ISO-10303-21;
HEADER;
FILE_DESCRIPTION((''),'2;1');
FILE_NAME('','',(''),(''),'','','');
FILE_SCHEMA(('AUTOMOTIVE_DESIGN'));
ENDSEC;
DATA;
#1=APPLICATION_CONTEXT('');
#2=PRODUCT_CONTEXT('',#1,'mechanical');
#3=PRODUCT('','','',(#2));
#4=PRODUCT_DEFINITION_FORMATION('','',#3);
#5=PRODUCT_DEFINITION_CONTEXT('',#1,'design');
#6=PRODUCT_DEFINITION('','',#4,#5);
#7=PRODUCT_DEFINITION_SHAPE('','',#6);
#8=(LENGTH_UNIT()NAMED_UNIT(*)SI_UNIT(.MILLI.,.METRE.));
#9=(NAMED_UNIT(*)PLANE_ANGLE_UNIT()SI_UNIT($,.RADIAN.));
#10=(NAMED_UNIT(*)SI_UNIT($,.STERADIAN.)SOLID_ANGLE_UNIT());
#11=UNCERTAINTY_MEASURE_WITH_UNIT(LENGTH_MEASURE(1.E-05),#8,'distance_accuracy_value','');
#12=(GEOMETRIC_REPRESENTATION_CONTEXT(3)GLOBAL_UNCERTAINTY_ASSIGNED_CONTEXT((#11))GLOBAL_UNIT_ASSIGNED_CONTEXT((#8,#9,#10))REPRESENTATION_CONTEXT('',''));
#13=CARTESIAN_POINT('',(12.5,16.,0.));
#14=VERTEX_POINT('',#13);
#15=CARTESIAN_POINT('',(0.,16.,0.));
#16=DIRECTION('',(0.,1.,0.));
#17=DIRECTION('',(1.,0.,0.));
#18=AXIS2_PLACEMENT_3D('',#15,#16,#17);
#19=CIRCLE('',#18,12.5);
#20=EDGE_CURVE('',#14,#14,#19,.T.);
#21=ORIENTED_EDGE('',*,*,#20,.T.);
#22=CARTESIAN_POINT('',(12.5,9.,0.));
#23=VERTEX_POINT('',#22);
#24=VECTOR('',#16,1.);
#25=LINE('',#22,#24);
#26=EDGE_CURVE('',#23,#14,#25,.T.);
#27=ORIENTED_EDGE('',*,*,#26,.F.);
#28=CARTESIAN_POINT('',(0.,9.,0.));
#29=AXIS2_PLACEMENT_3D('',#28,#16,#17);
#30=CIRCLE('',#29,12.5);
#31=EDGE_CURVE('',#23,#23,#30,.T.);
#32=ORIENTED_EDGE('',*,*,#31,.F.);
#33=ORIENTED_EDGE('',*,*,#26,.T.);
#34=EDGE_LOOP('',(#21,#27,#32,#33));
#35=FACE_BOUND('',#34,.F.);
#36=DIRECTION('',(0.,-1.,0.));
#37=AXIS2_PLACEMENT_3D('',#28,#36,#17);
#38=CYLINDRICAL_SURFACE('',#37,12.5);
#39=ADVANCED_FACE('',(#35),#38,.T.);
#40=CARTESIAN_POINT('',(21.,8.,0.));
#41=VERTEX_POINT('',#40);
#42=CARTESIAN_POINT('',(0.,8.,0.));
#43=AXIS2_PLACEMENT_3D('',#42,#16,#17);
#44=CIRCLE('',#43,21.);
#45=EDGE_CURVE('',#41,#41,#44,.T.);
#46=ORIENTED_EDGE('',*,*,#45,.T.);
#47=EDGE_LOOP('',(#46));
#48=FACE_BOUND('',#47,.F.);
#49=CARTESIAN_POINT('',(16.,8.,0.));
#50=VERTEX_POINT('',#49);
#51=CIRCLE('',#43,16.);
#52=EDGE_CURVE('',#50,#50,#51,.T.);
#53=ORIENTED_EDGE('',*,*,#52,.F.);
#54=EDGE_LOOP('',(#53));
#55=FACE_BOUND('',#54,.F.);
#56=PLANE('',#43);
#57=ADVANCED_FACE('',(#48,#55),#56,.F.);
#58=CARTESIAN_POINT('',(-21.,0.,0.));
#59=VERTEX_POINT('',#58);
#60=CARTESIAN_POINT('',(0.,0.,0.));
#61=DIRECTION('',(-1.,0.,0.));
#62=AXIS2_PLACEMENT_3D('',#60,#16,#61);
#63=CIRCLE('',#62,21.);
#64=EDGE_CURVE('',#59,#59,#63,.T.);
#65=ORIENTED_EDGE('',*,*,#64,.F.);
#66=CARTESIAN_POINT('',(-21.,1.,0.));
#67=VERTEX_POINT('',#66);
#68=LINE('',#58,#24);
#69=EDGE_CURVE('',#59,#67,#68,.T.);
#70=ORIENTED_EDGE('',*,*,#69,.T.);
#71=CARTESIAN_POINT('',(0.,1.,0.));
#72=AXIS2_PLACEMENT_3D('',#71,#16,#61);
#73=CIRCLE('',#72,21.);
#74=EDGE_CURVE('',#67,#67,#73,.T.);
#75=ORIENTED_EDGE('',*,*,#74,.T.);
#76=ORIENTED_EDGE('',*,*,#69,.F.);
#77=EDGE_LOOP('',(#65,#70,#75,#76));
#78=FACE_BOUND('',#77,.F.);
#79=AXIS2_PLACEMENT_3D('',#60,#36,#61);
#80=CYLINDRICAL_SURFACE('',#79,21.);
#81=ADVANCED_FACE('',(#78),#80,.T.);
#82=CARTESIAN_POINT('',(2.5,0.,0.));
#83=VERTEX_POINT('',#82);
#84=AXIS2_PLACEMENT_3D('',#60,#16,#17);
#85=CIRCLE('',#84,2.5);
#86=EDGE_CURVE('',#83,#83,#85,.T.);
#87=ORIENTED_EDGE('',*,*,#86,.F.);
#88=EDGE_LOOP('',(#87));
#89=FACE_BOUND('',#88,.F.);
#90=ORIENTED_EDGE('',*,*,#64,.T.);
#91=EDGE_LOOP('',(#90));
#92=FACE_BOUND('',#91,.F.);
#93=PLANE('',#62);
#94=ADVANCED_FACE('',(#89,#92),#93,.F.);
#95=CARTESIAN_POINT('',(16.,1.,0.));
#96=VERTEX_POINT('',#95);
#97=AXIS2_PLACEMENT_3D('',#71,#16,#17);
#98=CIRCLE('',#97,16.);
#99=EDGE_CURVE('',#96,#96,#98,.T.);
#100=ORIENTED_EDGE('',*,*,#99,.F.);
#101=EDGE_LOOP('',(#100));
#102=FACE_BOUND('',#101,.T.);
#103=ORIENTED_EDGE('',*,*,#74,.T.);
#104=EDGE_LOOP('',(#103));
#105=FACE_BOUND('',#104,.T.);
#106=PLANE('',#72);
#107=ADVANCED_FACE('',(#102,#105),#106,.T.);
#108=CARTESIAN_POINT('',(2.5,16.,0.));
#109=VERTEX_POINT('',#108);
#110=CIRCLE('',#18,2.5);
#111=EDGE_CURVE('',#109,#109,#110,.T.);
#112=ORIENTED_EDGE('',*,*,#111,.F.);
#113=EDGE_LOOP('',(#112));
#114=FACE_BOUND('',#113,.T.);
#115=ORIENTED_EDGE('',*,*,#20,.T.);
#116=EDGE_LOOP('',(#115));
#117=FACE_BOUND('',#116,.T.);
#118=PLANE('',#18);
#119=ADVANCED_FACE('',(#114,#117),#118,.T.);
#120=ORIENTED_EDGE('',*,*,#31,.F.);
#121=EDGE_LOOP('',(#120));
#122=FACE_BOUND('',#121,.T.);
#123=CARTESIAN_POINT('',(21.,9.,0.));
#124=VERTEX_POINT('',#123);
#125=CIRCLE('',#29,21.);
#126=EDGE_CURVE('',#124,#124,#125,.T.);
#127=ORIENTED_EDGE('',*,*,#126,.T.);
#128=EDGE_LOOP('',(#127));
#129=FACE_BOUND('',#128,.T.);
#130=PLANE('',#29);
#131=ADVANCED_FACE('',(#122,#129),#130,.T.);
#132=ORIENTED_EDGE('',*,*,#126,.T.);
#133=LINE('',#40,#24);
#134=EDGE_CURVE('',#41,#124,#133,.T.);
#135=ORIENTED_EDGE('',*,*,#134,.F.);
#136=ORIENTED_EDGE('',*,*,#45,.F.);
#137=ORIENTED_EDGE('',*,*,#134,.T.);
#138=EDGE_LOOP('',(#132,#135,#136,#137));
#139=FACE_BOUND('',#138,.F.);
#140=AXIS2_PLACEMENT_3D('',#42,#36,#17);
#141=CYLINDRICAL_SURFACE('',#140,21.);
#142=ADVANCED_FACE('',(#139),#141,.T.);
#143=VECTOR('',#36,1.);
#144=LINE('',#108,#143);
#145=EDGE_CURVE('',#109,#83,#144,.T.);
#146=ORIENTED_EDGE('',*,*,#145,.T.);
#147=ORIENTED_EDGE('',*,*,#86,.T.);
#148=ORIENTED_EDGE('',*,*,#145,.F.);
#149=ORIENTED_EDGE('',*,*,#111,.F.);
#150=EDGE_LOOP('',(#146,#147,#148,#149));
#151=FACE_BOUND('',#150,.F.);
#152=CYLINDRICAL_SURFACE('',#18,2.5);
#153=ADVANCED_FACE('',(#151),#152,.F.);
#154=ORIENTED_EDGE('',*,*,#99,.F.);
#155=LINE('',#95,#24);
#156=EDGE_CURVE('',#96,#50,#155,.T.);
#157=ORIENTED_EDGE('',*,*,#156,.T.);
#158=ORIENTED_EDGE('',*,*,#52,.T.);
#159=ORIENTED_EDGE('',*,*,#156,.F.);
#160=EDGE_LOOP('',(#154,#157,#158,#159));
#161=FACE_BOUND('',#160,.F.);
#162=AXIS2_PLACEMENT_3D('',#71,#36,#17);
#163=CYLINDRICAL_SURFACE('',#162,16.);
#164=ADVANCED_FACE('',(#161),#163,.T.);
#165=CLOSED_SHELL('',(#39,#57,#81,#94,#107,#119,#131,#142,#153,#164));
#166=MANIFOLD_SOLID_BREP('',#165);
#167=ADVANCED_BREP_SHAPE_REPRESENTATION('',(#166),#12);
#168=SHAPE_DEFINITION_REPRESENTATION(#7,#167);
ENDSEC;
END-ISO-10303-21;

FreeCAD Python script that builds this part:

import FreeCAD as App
import Part
import Sketcher
from FreeCAD import Vector

doc = App.newDocument("Part")
body = doc.addObject("PartDesign::Body", "Body")

# Sketch on XZ plane
sketch1 = body.newObject("Sketcher::SketchObject", "Sketch")
sketch1.AttachmentSupport = (doc.getObject("XZ_Plane"), [""])
sketch1.MapMode = "FlatFace"
sketch1.addGeometry(Part.Circle(Vector(0, 0, 0), Vector(0, 0, 1), 21), False)
sketch1.addConstraint(Sketcher.Constraint("Coincident", 0, 3, -1, 1))
sketch1.addConstraint(Sketcher.Constraint("Diameter", 0, 42.0))
pad1 = body.newObject("PartDesign::Pad", "Pad")
pad1.Profile = sketch1
pad1.Length = 1
pad1.Reversed = True

# Sketch on XZ plane
sketch2 = body.newObject("Sketcher::SketchObject", "Sketch001")
sketch2.AttachmentSupport = (doc.getObject("XZ_Plane"), [""])
sketch2.MapMode = "FlatFace"
sketch2.AttachmentOffset = App.Placement(Vector(0, 0, -1), App.Rotation())
sketch2.addGeometry(Part.Circle(Vector(0, 0, 0), Vector(0, 0, 1), 16), False)
sketch2.addConstraint(Sketcher.Constraint("Coincident", 0, 3, -1, 1))
sketch2.addConstraint(Sketcher.Constraint("Diameter", 0, 32.0))
pad2 = body.newObject("PartDesign::Pad", "Pad001")
pad2.Profile = sketch2
pad2.Length = 7
pad2.Reversed = True

# Sketch on XZ plane
sketch3 = body.newObject("Sketcher::SketchObject", "Sketch002")
sketch3.AttachmentSupport = (doc.getObject("XZ_Plane"), [""])
sketch3.MapMode = "FlatFace"
sketch3.AttachmentOffset = App.Placement(Vector(0, 0, -8), App.Rotation())
sketch3.addGeometry(Part.Circle(Vector(0, 0, 0), Vector(0, 0, 1), 21), False)
sketch3.addConstraint(Sketcher.Constraint("Coincident", 0, 3, -1, 1))
sketch3.addConstraint(Sketcher.Constraint("Diameter", 0, 42.0))
pad3 = body.newObject("PartDesign::Pad", "Pad002")
pad3.Profile = sketch3
pad3.Length = 1
pad3.Reversed = True

# Sketch on XZ plane
sketch4 = body.newObject("Sketcher::SketchObject", "Sketch003")
sketch4.AttachmentSupport = (doc.getObject("XZ_Plane"), [""])
sketch4.MapMode = "FlatFace"
sketch4.AttachmentOffset = App.Placement(Vector(0, 0, -9), App.Rotation())
sketch4.addGeometry(Part.Circle(Vector(0, 0, 0), Vector(0, 0, 1), 12.5), False)
sketch4.addConstraint(Sketcher.Constraint("Coincident", 0, 3, -1, 1))
sketch4.addConstraint(Sketcher.Constraint("Diameter", 0, 25.0))
pad4 = body.newObject("PartDesign::Pad", "Pad003")
pad4.Profile = sketch4
pad4.Length = 7
pad4.Reversed = True

# Sketch on XZ plane
sketch5 = body.newObject("Sketcher::SketchObject", "Sketch004")
sketch5.AttachmentSupport = (doc.getObject("XZ_Plane"), [""])
sketch5.MapMode = "FlatFace"
sketch5.AttachmentOffset = App.Placement(Vector(0, 0, -16), App.Rotation())
sketch5.addGeometry(Part.Circle(Vector(0, 0, 0), Vector(0, 0, 1), 2.5), False)
sketch5.addConstraint(Sketcher.Constraint("Coincident", 0, 3, -1, 1))
sketch5.addConstraint(Sketcher.Constraint("Diameter", 0, 5.0))
pocket1 = body.newObject("PartDesign::Pocket", "Pocket")
pocket1.Profile = sketch5
pocket1.Type = "ThroughAll"
pocket1.Reversed = True

doc.recompute()
